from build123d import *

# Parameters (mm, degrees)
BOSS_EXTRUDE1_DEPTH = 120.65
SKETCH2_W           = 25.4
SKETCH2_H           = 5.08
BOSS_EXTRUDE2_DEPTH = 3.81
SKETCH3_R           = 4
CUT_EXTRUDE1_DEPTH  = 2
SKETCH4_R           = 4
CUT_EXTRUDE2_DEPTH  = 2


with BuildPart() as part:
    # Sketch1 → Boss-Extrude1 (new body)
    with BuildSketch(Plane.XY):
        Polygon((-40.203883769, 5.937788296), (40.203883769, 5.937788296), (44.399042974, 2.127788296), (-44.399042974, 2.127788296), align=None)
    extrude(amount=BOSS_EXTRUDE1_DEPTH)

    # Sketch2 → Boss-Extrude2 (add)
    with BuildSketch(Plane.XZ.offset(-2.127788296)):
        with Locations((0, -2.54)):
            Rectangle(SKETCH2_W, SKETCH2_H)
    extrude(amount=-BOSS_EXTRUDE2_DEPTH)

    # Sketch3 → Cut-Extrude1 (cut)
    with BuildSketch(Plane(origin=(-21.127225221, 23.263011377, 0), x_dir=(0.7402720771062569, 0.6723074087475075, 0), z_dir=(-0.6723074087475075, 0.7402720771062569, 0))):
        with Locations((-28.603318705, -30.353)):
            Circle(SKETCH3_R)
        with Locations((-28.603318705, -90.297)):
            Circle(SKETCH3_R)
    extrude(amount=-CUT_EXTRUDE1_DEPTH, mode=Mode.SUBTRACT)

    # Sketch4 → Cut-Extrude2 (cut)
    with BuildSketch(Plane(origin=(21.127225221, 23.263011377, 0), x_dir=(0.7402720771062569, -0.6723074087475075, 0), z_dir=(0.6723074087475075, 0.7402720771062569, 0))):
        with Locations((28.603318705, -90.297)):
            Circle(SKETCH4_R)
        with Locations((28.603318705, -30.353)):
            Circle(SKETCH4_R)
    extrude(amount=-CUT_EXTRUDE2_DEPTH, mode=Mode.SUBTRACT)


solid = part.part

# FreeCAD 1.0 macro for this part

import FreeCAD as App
import Part
import Sketcher
Q = App.Units.Quantity

doc = App.newDocument("Part")
body = doc.addObject("PartDesign::Body", "Body")

sketch1 = doc.addObject("Sketcher::SketchObject", "Sketch")
body.addObject(sketch1)
sketch1.AttachmentSupport = (doc.XY_Plane, [""])
sketch1.MapMode = "FlatFace"
sketch1.addGeometry([
    Part.LineSegment(App.Vector(40.203884, 5.937788, 0), App.Vector(-40.203884, 5.937788, 0)),
    Part.LineSegment(App.Vector(-40.203884, 5.937788, 0), App.Vector(-44.399043, 2.127788, 0)),
    Part.LineSegment(App.Vector(-44.399043, 2.127788, 0), App.Vector(44.399043, 2.127788, 0)),
    Part.LineSegment(App.Vector(44.399043, 2.127788, 0), App.Vector(40.203884, 5.937788, 0)),
], False)
sketch1.addConstraint([
    Sketcher.Constraint("Coincident", 0, 2, 1, 1),
    Sketcher.Constraint("Coincident", 1, 2, 2, 1),
    Sketcher.Constraint("Coincident", 2, 2, 3, 1),
    Sketcher.Constraint("Coincident", 3, 2, 0, 1),
    Sketcher.Constraint("Horizontal", 0),
    Sketcher.Constraint("Horizontal", 2),
    Sketcher.Constraint("Equal", 1, 3),
    Sketcher.Constraint("DistanceY", 1, 2, 0, 2, Q("0.15 in")),
    Sketcher.Constraint("Distance", 1, Q("5.66705 mm")),
    Sketcher.Constraint("DistanceX", 0, 2, 0, 1, Q("80.407768 mm")),
    Sketcher.Constraint("DistanceY", -1, 1, 0, 2, Q("5.937788 mm")),
    Sketcher.Constraint("DistanceX", 0, 2, -1, 1, Q("40.203884 mm")),
])
pad1 = doc.addObject("PartDesign::Pad", "Pad")
body.addObject(pad1)
pad1.Profile = sketch1
pad1.Length = Q("4.75 in")

sketch2 = doc.addObject("Sketcher::SketchObject", "Sketch001")
body.addObject(sketch2)
sketch2.AttachmentSupport = (doc.XZ_Plane, [""])
sketch2.MapMode = "FlatFace"
sketch2.AttachmentOffset = App.Placement(App.Vector(0, 0, -2.127788), App.Rotation())
sketch2.addGeometry([
    Part.LineSegment(App.Vector(-12.7, 0, 0), App.Vector(-12.7, -5.08, 0)),
    Part.LineSegment(App.Vector(-12.7, -5.08, 0), App.Vector(12.7, -5.08, 0)),
    Part.LineSegment(App.Vector(12.7, -5.08, 0), App.Vector(12.7, 0, 0)),
    Part.LineSegment(App.Vector(12.7, 0, 0), App.Vector(-12.7, 0, 0)),
], False)
sketch2.addConstraint([
    Sketcher.Constraint("Coincident", 0, 2, 1, 1),
    Sketcher.Constraint("Coincident", 1, 2, 2, 1),
    Sketcher.Constraint("Coincident", 2, 2, 3, 1),
    Sketcher.Constraint("Coincident", 3, 2, 0, 1),
    Sketcher.Constraint("Vertical", 0),
    Sketcher.Constraint("Horizontal", 1),
    Sketcher.Constraint("Vertical", 2),
    Sketcher.Constraint("Horizontal", 3),
    Sketcher.Constraint("Symmetric", 2, 2, 3, 2, -1, 1),
    Sketcher.Constraint("DistanceX", 1, 1, 1, 2, Q("1 in")),
    Sketcher.Constraint("DistanceY", 0, 2, 0, 1, Q("0.2 in")),
])
pad2 = doc.addObject("PartDesign::Pad", "Pad001")
body.addObject(pad2)
pad2.Profile = sketch2
pad2.Length = Q("0.15 in")
pad2.Reversed = True

sketch3 = doc.addObject("Sketcher::SketchObject", "Sketch002")
body.addObject(sketch3)
sketch3.Placement = App.Placement(App.Vector(-21.127225, 23.263011, 0), App.Rotation(App.Vector(0.740272077, 0.672307409, 0), App.Vector(0, 0, -1), App.Vector(-0.672307409, 0.740272077, 0), "ZXY"))
sketch3.addGeometry([
    Part.Circle(App.Vector(-28.603319, -30.353, 0), App.Vector(0, 0, 1), 4),
    Part.Circle(App.Vector(-28.603319, -90.297, 0), App.Vector(0, 0, 1), 4),
], False)
sketch3.addConstraint([
    Sketcher.Constraint("Equal", 0, 1),
    Sketcher.Constraint("Vertical", 0, 3, 1, 3),
    Sketcher.Constraint("Diameter", 0, Q("8 mm")),
    Sketcher.Constraint("DistanceY", 1, 3, 0, 3, Q("2.36 in")),
    Sketcher.Constraint("DistanceY", 0, 3, -1, 1, Q("1.195 in")),
    Sketcher.Constraint("DistanceX", 0, 3, -1, 1, Q("28.603319 mm")),
])
pocket1 = doc.addObject("PartDesign::Pocket", "Pocket")
body.addObject(pocket1)
pocket1.Profile = sketch3
pocket1.Length = 2

sketch4 = doc.addObject("Sketcher::SketchObject", "Sketch003")
body.addObject(sketch4)
sketch4.Placement = App.Placement(App.Vector(21.127225, 23.263011, 0), App.Rotation(App.Vector(0.740272077, -0.672307409, 0), App.Vector(0, 0, -1), App.Vector(0.672307409, 0.740272077, 0), "ZXY"))
sketch4.addGeometry([
    Part.Circle(App.Vector(28.603319, -90.297, 0), App.Vector(0, 0, 1), 4),
    Part.Circle(App.Vector(28.603319, -30.353, 0), App.Vector(0, 0, 1), 4),
], False)
sketch4.addConstraint([
    Sketcher.Constraint("Equal", 0, 1),
    Sketcher.Constraint("Vertical", 0, 3, 1, 3),
    Sketcher.Constraint("Diameter", 0, Q("8 mm")),
    Sketcher.Constraint("DistanceY", 0, 3, 1, 3, Q("2.36 in")),
    Sketcher.Constraint("DistanceY", 0, 3, -1, 1, Q("3.555 in")),
    Sketcher.Constraint("DistanceX", -1, 1, 0, 3, Q("28.603319 mm")),
])
pocket2 = doc.addObject("PartDesign::Pocket", "Pocket001")
body.addObject(pocket2)
pocket2.Profile = sketch4
pocket2.Length = 2

doc.recompute()
